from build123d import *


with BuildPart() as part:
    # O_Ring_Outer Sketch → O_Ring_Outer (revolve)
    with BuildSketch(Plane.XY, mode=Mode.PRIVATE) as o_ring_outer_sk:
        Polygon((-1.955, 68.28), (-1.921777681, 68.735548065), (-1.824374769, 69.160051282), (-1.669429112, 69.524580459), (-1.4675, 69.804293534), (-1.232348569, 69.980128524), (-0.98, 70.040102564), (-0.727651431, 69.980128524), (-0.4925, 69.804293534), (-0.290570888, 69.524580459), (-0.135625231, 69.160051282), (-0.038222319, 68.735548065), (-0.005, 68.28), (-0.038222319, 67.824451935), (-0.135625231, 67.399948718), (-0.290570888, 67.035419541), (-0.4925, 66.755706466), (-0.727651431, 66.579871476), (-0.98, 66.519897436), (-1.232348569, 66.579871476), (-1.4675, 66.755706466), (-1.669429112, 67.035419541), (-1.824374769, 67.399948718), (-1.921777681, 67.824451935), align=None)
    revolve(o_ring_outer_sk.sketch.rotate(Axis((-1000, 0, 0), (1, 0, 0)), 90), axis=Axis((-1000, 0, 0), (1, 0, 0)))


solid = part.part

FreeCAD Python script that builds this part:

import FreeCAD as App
import Part
import Sketcher

V = App.Vector


def add_polygon(sketch, points):
    """Adds a closed chain of lines whose ends are joined by coincident constraints."""
    first, n = sketch.GeometryCount, len(points)
    for a, b in zip(points, points[1:] + points[:1]):
        sketch.addGeometry(Part.LineSegment(App.Vector(*a, 0), App.Vector(*b, 0)), False)
    for i in range(n):
        sketch.addConstraint(Sketcher.Constraint("Coincident", first + i, 2, first + (i + 1) % n, 1))

doc = App.newDocument("Part")
body = doc.addObject("PartDesign::Body", "Body")

# Sketch on XY plane
sketch1 = body.newObject("Sketcher::SketchObject", "Sketch")
sketch1.AttachmentSupport = (doc.getObject("XY_Plane"), [""])
sketch1.MapMode = "FlatFace"
add_polygon(sketch1, [(-1.921778, 68.735548), (-1.955, 68.28), (-1.921778, 67.824452), (-1.824375, 67.399949), (-1.669429, 67.03542), (-1.4675, 66.755706), (-1.232349, 66.579871), (-0.98, 66.519897), (-0.727651, 66.579871), (-0.4925, 66.755706), (-0.290571, 67.03542), (-0.135625, 67.399949), (-0.038222, 67.824452), (-0.005, 68.28), (-0.038222, 68.735548), (-0.135625, 69.160051), (-0.290571, 69.52458), (-0.4925, 69.804294), (-0.727651, 69.980129), (-0.98, 70.040103), (-1.232349, 69.980129), (-1.4675, 69.804294), (-1.669429, 69.52458), (-1.824375, 69.160051)])  # lines 0-23
sketch1.addConstraint(Sketcher.Constraint("Parallel", 0, 12))
sketch1.addConstraint(Sketcher.Constraint("Parallel", 1, 13))
sketch1.addConstraint(Sketcher.Constraint("Parallel", 2, 14))
sketch1.addConstraint(Sketcher.Constraint("Parallel", 3, 15))
sketch1.addConstraint(Sketcher.Constraint("Parallel", 4, 16))
sketch1.addConstraint(Sketcher.Constraint("Parallel", 5, 17))
sketch1.addConstraint(Sketcher.Constraint("Parallel", 6, 18))
sketch1.addConstraint(Sketcher.Constraint("Parallel", 7, 19))
sketch1.addConstraint(Sketcher.Constraint("Parallel", 8, 20))
sketch1.addConstraint(Sketcher.Constraint("Parallel", 9, 21))
sketch1.addConstraint(Sketcher.Constraint("Parallel", 10, 22))
sketch1.addConstraint(Sketcher.Constraint("Parallel", 11, 23))
sketch1.addConstraint(Sketcher.Constraint("Horizontal", 5, 2, 7, 2))
sketch1.addConstraint(Sketcher.Constraint("Horizontal", 4, 2, 8, 2))
sketch1.addConstraint(Sketcher.Constraint("Horizontal", 3, 2, 9, 2))
sketch1.addConstraint(Sketcher.Constraint("Horizontal", 2, 2, 10, 2))
sketch1.addConstraint(Sketcher.Constraint("Horizontal", 1, 2, 11, 2))
sketch1.addConstraint(Sketcher.Constraint("Horizontal", 0, 2, 12, 2))
sketch1.addConstraint(Sketcher.Constraint("Horizontal", 17, 2, 19, 2))
sketch1.addConstraint(Sketcher.Constraint("Horizontal", 16, 2, 20, 2))
sketch1.addConstraint(Sketcher.Constraint("Horizontal", 15, 2, 21, 2))
sketch1.addConstraint(Sketcher.Constraint("Horizontal", 14, 2, 22, 2))
sketch1.addConstraint(Sketcher.Constraint("Horizontal", 13, 2, 23, 2))
sketch1.addConstraint(Sketcher.Constraint("Vertical", 11, 2, 13, 2))
sketch1.addConstraint(Sketcher.Constraint("Vertical", 10, 2, 14, 2))
sketch1.addConstraint(Sketcher.Constraint("Vertical", 9, 2, 15, 2))
sketch1.addConstraint(Sketcher.Constraint("Vertical", 8, 2, 16, 2))
sketch1.addConstraint(Sketcher.Constraint("Vertical", 7, 2, 17, 2))
sketch1.addConstraint(Sketcher.Constraint("Vertical", 6, 2, 18, 2))
sketch1.addConstraint(Sketcher.Constraint("Vertical", 5, 2, 19, 2))
sketch1.addConstraint(Sketcher.Constraint("Vertical", 4, 2, 20, 2))
sketch1.addConstraint(Sketcher.Constraint("Vertical", 3, 2, 21, 2))
sketch1.addConstraint(Sketcher.Constraint("Vertical", 2, 2, 22, 2))
sketch1.addConstraint(Sketcher.Constraint("Vertical", 1, 2, 23, 2))
sketch1.addConstraint(Sketcher.Constraint("DistanceY", -1, 1, 0, 2, 68.28))
sketch1.addConstraint(Sketcher.Constraint("DistanceX", 6, 2, -1, 1, 0.98))
sketch1.addConstraint(Sketcher.Constraint("DistanceX", 0, 2, -1, 1, 1.955))
sketch1.addConstraint(Sketcher.Constraint("DistanceX", 4, 2, 8, 2, 0.975))
sketch1.addConstraint(Sketcher.Constraint("DistanceY", 10, 2, 13, 2, 1.335599))
sketch1.addConstraint(Sketcher.Constraint("DistanceY", -1, 1, 1, 2, 67.824452))
sketch1.addConstraint(Sketcher.Constraint("DistanceX", 3, 2, -1, 1, 1.669429))
sketch1.addConstraint(Sketcher.Constraint("DistanceY", -1, 1, 3, 2, 67.03542))
sketch1.addConstraint(Sketcher.Constraint("DistanceX", 5, 2, -1, 1, 1.232349))
sketch1.addConstraint(Sketcher.Constraint("DistanceY", -1, 1, 5, 2, 66.579871))
sketch1.addConstraint(Sketcher.Constraint("DistanceX", 1, 2, 3, 2, 0.252349))
sketch1.addConstraint(Sketcher.Constraint("DistanceY", 6, 2, 4, 2, 0.235809))
sketch1.addConstraint(Sketcher.Constraint("DistanceY", 6, 2, 2, 2, 0.880051))
sketch1.addConstraint(Sketcher.Constraint("Distance", 2, 0.435535))
revolution = body.newObject("PartDesign::Revolution", "Revolution")
revolution.Profile = sketch1
revolution.ReferenceAxis = (sketch1, ["H_Axis"])
revolution.Angle = 360

doc.recompute()
